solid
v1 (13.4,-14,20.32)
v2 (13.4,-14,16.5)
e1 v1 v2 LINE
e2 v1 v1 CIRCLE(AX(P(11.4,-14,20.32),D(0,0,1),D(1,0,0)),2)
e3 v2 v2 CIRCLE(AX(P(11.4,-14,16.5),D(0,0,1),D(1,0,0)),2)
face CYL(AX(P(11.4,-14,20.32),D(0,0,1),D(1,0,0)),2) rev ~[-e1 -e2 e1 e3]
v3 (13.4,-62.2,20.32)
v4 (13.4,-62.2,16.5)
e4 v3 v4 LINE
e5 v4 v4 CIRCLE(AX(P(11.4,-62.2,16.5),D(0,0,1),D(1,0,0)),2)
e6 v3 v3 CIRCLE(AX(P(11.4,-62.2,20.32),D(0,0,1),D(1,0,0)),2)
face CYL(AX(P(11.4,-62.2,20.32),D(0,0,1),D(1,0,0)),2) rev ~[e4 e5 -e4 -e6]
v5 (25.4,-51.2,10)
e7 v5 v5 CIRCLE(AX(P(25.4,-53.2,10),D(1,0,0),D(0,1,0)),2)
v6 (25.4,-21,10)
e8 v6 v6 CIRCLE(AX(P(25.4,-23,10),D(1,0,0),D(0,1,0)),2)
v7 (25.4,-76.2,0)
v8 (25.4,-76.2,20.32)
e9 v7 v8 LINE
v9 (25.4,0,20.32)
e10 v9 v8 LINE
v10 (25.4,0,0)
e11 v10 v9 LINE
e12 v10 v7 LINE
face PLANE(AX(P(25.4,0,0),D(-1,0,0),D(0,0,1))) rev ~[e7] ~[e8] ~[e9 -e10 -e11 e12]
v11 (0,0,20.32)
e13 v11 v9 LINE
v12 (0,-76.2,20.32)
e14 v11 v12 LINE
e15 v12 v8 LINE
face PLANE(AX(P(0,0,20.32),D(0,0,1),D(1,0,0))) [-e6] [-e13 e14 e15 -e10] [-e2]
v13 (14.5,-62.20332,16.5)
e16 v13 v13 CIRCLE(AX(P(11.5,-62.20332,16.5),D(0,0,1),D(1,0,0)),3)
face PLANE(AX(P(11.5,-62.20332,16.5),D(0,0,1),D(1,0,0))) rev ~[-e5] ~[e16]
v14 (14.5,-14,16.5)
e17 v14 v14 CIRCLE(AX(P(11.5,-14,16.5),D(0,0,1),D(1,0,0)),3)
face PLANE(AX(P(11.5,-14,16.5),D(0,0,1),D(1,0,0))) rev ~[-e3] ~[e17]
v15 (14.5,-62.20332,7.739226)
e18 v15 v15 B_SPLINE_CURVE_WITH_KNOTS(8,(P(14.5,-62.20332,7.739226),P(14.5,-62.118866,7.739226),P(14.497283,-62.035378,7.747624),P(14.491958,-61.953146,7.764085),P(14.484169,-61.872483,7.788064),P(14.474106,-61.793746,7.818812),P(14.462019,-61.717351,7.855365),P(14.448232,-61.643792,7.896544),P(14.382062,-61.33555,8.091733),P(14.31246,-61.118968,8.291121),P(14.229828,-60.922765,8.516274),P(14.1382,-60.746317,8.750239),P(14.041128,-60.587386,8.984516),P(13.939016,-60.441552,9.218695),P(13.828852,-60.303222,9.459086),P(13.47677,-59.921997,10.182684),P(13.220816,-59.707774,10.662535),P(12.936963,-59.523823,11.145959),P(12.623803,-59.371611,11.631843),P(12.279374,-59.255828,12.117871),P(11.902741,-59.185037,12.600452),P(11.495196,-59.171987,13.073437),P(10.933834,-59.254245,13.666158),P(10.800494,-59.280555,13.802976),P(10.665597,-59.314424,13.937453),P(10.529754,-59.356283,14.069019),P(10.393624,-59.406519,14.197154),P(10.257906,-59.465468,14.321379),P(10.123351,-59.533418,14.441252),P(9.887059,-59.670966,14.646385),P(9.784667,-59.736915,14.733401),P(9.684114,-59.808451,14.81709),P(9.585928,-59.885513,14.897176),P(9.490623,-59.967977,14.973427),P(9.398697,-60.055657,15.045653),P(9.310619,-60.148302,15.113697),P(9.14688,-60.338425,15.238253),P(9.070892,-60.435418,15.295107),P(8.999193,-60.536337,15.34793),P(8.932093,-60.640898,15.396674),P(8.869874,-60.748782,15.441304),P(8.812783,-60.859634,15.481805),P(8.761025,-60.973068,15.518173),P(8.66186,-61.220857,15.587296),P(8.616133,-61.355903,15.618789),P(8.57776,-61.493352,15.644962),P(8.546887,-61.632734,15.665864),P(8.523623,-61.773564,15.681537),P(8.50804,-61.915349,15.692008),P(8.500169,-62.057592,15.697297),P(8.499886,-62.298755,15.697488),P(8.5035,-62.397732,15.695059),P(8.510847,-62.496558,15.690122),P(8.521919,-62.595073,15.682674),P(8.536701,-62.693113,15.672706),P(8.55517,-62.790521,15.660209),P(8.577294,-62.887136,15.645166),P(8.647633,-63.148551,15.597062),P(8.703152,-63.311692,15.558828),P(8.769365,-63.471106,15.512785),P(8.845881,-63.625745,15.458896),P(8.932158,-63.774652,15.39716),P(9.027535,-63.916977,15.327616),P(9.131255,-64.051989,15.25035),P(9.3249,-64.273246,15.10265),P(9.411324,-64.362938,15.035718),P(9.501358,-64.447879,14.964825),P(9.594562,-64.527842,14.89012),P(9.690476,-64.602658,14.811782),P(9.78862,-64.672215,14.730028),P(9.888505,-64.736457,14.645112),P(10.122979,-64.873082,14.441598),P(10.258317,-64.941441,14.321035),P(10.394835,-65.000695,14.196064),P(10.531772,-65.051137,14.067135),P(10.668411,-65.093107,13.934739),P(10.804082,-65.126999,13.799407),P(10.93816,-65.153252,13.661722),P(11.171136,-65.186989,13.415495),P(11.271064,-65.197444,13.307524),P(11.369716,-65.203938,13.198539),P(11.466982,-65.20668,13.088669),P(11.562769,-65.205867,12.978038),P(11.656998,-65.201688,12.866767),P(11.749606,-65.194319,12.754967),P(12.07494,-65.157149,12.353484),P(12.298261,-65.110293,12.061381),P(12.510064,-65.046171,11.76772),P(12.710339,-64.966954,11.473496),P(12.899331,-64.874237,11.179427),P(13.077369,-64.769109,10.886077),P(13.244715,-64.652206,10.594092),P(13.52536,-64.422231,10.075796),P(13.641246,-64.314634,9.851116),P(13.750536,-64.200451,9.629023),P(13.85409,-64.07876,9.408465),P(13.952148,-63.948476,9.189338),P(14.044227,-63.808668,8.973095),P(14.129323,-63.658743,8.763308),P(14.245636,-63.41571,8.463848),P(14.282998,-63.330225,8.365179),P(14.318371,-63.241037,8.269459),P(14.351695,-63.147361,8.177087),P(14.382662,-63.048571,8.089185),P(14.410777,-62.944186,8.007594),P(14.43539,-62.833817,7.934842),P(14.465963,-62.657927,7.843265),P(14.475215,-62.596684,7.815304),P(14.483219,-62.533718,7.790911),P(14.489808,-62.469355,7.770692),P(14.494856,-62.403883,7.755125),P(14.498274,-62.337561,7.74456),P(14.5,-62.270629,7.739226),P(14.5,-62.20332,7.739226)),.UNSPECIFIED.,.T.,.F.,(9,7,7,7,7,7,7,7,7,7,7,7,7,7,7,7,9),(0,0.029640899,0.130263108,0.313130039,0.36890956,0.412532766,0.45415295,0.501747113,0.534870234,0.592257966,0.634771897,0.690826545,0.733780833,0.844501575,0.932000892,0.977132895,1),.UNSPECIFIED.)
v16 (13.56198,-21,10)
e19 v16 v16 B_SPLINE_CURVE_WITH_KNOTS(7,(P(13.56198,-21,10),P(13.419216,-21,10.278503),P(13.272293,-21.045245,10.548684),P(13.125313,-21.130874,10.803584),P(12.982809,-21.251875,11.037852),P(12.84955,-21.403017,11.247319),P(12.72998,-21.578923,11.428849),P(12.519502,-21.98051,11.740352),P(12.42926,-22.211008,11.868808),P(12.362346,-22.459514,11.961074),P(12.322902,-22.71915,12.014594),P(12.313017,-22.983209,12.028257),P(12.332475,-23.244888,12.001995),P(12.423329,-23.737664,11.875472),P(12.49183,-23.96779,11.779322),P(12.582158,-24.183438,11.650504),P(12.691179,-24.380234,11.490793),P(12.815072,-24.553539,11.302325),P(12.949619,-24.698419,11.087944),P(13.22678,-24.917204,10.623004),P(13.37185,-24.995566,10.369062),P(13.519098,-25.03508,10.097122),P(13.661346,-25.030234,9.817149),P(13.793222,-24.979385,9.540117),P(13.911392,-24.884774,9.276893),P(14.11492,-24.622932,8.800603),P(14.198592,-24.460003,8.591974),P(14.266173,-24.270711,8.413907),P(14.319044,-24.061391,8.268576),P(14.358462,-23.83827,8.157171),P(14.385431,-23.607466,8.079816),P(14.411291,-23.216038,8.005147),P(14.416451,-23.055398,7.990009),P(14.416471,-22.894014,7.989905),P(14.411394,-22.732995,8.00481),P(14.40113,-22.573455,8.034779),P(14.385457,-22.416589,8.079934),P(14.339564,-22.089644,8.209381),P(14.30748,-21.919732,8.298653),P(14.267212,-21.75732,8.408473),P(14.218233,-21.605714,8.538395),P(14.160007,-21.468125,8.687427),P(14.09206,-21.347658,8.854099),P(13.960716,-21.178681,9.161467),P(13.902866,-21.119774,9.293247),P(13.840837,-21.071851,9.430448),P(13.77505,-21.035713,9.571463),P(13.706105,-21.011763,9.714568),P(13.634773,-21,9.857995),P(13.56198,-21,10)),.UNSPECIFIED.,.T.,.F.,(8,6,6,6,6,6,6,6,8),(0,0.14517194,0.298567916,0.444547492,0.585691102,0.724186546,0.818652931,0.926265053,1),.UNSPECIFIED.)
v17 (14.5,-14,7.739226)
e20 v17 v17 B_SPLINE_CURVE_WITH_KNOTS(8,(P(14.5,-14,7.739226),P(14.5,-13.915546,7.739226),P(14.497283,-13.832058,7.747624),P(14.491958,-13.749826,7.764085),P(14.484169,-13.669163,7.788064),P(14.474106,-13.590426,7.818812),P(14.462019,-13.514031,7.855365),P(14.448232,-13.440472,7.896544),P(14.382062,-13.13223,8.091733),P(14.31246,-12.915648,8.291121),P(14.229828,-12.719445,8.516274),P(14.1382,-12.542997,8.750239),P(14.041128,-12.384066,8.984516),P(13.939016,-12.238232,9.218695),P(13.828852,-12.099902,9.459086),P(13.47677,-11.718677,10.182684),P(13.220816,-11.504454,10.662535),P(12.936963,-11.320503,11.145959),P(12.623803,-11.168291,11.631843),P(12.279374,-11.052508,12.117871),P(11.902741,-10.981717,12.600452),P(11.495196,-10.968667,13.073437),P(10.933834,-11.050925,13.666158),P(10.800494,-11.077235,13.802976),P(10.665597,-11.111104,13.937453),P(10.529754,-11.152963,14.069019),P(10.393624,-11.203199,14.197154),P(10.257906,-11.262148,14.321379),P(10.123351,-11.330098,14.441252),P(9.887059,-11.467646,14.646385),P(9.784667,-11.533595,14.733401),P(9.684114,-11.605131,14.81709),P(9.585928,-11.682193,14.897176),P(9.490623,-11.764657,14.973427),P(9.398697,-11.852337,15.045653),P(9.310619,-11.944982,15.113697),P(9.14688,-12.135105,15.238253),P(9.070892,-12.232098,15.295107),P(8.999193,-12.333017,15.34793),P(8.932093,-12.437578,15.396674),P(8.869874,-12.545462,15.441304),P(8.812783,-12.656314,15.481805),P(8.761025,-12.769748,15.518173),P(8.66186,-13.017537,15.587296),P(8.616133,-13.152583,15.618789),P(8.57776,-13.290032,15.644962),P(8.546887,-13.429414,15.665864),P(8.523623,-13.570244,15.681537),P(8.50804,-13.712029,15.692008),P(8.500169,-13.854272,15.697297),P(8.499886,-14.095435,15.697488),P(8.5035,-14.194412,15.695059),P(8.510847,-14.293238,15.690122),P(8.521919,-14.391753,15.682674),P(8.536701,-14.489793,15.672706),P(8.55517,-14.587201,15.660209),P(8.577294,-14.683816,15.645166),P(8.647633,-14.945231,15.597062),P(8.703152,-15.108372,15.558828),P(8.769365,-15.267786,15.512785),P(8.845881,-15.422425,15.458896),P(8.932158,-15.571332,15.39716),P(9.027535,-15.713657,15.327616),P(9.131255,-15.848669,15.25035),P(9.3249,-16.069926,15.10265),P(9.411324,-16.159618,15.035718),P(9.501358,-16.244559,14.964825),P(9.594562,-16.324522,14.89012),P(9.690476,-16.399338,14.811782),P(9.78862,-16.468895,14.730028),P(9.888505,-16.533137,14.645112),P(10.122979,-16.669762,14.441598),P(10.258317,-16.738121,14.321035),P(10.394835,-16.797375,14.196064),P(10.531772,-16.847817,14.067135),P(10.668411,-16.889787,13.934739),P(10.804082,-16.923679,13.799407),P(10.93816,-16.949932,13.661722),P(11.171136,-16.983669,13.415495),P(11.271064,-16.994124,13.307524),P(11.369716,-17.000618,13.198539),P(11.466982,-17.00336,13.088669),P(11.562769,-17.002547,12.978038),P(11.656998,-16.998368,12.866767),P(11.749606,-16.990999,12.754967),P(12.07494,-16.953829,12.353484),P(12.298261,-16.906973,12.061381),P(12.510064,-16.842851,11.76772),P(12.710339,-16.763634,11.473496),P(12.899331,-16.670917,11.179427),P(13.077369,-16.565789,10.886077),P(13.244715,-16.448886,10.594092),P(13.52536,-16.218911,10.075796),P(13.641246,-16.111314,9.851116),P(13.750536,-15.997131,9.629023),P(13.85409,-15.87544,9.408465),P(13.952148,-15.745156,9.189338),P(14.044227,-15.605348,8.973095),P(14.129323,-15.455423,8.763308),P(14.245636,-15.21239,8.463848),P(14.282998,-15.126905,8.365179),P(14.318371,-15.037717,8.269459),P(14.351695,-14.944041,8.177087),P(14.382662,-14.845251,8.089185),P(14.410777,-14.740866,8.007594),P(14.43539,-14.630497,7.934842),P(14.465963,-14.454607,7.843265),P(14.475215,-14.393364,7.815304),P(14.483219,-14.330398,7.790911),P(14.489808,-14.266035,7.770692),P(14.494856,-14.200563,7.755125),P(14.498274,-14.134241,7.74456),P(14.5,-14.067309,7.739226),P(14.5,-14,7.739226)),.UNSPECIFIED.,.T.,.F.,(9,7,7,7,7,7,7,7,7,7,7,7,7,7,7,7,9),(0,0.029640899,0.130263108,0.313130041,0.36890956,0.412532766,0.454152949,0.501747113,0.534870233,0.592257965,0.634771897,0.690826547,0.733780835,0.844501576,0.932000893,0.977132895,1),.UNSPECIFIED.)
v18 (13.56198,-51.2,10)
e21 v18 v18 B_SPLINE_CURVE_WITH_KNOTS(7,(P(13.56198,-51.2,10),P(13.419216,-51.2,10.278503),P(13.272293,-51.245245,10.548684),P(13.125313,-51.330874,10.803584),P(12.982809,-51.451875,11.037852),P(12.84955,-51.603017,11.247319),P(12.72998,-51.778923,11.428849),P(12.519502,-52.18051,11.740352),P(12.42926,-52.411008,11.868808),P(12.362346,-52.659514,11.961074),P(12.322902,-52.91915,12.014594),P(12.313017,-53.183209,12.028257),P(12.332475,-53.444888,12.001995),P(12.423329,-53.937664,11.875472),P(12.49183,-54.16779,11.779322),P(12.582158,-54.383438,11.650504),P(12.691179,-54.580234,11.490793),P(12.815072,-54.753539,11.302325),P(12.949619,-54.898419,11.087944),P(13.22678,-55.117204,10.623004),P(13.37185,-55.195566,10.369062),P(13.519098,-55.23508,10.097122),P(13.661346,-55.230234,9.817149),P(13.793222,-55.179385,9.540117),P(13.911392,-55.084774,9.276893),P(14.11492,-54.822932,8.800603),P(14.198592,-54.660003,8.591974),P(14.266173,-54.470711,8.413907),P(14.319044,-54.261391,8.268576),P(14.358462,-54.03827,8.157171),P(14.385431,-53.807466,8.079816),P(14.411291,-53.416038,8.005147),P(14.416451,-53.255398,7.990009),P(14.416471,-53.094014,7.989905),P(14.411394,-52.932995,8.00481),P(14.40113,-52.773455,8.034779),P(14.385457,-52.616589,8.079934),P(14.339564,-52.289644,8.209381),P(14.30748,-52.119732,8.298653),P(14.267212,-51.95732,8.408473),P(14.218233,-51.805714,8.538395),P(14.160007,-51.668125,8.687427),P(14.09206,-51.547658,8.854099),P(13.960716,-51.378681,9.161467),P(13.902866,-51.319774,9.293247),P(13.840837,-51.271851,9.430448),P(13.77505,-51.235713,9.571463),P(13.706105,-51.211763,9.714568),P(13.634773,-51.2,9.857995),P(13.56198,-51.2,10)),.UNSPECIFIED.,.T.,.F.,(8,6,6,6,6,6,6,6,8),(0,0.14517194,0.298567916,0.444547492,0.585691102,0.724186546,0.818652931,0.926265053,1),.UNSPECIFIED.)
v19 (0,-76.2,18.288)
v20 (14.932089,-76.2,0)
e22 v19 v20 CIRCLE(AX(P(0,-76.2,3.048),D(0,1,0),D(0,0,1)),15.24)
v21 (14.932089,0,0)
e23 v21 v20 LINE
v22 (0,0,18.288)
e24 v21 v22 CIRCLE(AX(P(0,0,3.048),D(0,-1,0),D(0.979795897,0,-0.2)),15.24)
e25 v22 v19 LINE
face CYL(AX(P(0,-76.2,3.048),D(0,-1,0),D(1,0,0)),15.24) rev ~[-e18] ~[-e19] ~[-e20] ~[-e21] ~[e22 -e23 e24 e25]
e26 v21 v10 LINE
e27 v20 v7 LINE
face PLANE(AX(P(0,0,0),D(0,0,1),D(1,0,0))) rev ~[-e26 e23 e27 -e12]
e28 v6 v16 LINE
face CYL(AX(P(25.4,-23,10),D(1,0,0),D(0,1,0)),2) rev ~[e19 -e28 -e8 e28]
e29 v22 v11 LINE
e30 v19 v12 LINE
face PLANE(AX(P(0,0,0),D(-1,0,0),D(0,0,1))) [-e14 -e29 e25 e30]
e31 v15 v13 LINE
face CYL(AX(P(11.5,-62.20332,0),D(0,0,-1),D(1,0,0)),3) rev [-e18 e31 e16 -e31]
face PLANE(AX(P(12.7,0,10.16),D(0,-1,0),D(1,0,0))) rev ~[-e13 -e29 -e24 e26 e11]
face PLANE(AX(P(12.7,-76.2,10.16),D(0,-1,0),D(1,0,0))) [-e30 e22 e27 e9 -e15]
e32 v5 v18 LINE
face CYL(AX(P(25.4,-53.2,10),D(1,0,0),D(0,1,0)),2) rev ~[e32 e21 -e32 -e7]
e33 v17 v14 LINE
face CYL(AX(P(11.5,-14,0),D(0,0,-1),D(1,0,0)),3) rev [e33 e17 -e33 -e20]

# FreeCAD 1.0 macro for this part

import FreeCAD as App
import Part
import Sketcher

V = App.Vector
Q = App.Units.Quantity


def add_polygon(sketch, points):
    """Adds a closed chain of lines whose ends are joined by coincident constraints."""
    first, n = sketch.GeometryCount, len(points)
    for a, b in zip(points, points[1:] + points[:1]):
        sketch.addGeometry(Part.LineSegment(App.Vector(*a, 0), App.Vector(*b, 0)), False)
    for i in range(n):
        sketch.addConstraint(Sketcher.Constraint("Coincident", first + i, 2, first + (i + 1) % n, 1))

doc = App.newDocument("Part")
body = doc.addObject("PartDesign::Body", "Body")

# Sketch on XZ plane
sketch1 = doc.addObject("Sketcher::SketchObject", "Sketch")
body.addObject(sketch1)
sketch1.AttachmentSupport = (doc.XZ_Plane, [""])
sketch1.MapMode = "FlatFace"
add_polygon(sketch1, [(0, 20), (0, 0), (25, 0), (25, 20)])  # lines 0-3
sketch1.addConstraint(Sketcher.Constraint("Vertical", 0))
sketch1.addConstraint(Sketcher.Constraint("Horizontal", 1))
sketch1.addConstraint(Sketcher.Constraint("Vertical", 2))
sketch1.addConstraint(Sketcher.Constraint("Horizontal", 3))
sketch1.addConstraint(Sketcher.Constraint("Coincident", 0, 2, -1, 1))
sketch1.addConstraint(Sketcher.Constraint("DistanceX", 1, 1, 1, 2, Q("25.4 mm")))
sketch1.addConstraint(Sketcher.Constraint("DistanceY", 0, 2, 0, 1, Q("20.32 mm")))
pad1 = doc.addObject("PartDesign::Pad", "Pad")
body.addObject(pad1)
pad1.Profile = sketch1
pad1.Length = 76.2

# Sketch on XZ plane
sketch2 = doc.addObject("Sketcher::SketchObject", "Sketch001")
body.addObject(sketch2)
sketch2.AttachmentSupport = (doc.XZ_Plane, [""])
sketch2.MapMode = "FlatFace"
sketch2.AttachmentOffset = App.Placement(V(0, 0, 76.2), App.Rotation())
sketch2.addGeometry(Part.Circle(V(0, 3, 0), V(0, 0, 1), 15), False)
sketch2.addConstraint(Sketcher.Constraint("PointOnObject", 0, 3, -2))
sketch2.addConstraint(Sketcher.Constraint("Diameter", 0, Q("30.48 mm")))
sketch2.addConstraint(Sketcher.Constraint("DistanceY", -1, 1, 0, 3, Q("3.048 mm")))
pocket1 = doc.addObject("PartDesign::Pocket", "Pocket")
body.addObject(pocket1)
pocket1.Profile = sketch2
pocket1.Length = 76.2

# Sketch on XY plane
sketch3 = doc.addObject("Sketcher::SketchObject", "Sketch002")
body.addObject(sketch3)
sketch3.AttachmentSupport = (doc.XY_Plane, [""])
sketch3.MapMode = "FlatFace"
sketch3.AttachmentOffset = App.Placement(V(0, 0, 20.32), App.Rotation())
sketch3.addGeometry(Part.Circle(V(11.4, -14, 0), V(0, 0, 1), 2), False)
sketch3.addGeometry(Part.Circle(V(11.4, -62.2, 0), V(0, 0, 1), 2), False)
sketch3.addConstraint(Sketcher.Constraint("Equal", 0, 1))
sketch3.addConstraint(Sketcher.Constraint("Vertical", 0, 3, 1, 3))
sketch3.addConstraint(Sketcher.Constraint("Diameter", 0, Q("4 mm")))
sketch3.addConstraint(Sketcher.Constraint("DistanceY", 0, 3, -1, 1, Q("14 mm")))
sketch3.addConstraint(Sketcher.Constraint("DistanceX", -1, 1, 0, 3, Q("11.4 mm")))
sketch3.addConstraint(Sketcher.Constraint("DistanceY", 1, 3, -1, 1, Q("62.2 mm")))
pocket2 = doc.addObject("PartDesign::Pocket", "Pocket001")
body.addObject(pocket2)
pocket2.Profile = sketch3
pocket2.Length = 25

# Sketch on XY plane
sketch4 = doc.addObject("Sketcher::SketchObject", "Sketch003")
body.addObject(sketch4)
sketch4.AttachmentSupport = (doc.XY_Plane, [""])
sketch4.MapMode = "FlatFace"
sketch4.addGeometry(Part.Circle(V(11.5, -14, 0), V(0, 0, 1), 3), False)
sketch4.addGeometry(Part.Circle(V(11.5, -62.2, 0), V(0, 0, 1), 3), False)
sketch4.addConstraint(Sketcher.Constraint("Equal", 0, 1))
sketch4.addConstraint(Sketcher.Constraint("Vertical", 0, 3, 1, 3))
sketch4.addConstraint(Sketcher.Constraint("Diameter", 0, Q("6 mm")))
sketch4.addConstraint(Sketcher.Constraint("DistanceY", 0, 3, -1, 1, Q("14 mm")))
sketch4.addConstraint(Sketcher.Constraint("DistanceX", -1, 1, 0, 3, Q("11.5 mm")))
sketch4.addConstraint(Sketcher.Constraint("DistanceY", 1, 3, -1, 1, Q("62.20332 mm")))
pocket3 = doc.addObject("PartDesign::Pocket", "Pocket002")
body.addObject(pocket3)
pocket3.Profile = sketch4
pocket3.Length = 16.5
pocket3.Reversed = True

# Sketch on YZ plane
sketch5 = doc.addObject("Sketcher::SketchObject", "Sketch004")
body.addObject(sketch5)
sketch5.AttachmentSupport = (doc.YZ_Plane, [""])
sketch5.MapMode = "FlatFace"
sketch5.AttachmentOffset = App.Placement(V(0, 0, 25.4), App.Rotation())
sketch5.addGeometry(Part.Circle(V(-23, 10, 0), V(0, 0, 1), 2), False)
sketch5.addGeometry(Part.Circle(V(-53.2, 10, 0), V(0, 0, 1), 2), False)
sketch5.addConstraint(Sketcher.Constraint("Equal", 0, 1))
sketch5.addConstraint(Sketcher.Constraint("Horizontal", 0, 3, 1, 3))
sketch5.addConstraint(Sketcher.Constraint("Diameter", 0, Q("4 mm")))
sketch5.addConstraint(Sketcher.Constraint("DistanceX", 0, 3, -1, 1, Q("23 mm")))
sketch5.addConstraint(Sketcher.Constraint("DistanceY", -1, 1, 0, 3, Q("10 mm")))
sketch5.addConstraint(Sketcher.Constraint("DistanceX", 1, 3, -1, 1, Q("53.2 mm")))
pocket4 = doc.addObject("PartDesign::Pocket", "Pocket003")
body.addObject(pocket4)
pocket4.Profile = sketch5
pocket4.Length = 25

doc.recompute()
